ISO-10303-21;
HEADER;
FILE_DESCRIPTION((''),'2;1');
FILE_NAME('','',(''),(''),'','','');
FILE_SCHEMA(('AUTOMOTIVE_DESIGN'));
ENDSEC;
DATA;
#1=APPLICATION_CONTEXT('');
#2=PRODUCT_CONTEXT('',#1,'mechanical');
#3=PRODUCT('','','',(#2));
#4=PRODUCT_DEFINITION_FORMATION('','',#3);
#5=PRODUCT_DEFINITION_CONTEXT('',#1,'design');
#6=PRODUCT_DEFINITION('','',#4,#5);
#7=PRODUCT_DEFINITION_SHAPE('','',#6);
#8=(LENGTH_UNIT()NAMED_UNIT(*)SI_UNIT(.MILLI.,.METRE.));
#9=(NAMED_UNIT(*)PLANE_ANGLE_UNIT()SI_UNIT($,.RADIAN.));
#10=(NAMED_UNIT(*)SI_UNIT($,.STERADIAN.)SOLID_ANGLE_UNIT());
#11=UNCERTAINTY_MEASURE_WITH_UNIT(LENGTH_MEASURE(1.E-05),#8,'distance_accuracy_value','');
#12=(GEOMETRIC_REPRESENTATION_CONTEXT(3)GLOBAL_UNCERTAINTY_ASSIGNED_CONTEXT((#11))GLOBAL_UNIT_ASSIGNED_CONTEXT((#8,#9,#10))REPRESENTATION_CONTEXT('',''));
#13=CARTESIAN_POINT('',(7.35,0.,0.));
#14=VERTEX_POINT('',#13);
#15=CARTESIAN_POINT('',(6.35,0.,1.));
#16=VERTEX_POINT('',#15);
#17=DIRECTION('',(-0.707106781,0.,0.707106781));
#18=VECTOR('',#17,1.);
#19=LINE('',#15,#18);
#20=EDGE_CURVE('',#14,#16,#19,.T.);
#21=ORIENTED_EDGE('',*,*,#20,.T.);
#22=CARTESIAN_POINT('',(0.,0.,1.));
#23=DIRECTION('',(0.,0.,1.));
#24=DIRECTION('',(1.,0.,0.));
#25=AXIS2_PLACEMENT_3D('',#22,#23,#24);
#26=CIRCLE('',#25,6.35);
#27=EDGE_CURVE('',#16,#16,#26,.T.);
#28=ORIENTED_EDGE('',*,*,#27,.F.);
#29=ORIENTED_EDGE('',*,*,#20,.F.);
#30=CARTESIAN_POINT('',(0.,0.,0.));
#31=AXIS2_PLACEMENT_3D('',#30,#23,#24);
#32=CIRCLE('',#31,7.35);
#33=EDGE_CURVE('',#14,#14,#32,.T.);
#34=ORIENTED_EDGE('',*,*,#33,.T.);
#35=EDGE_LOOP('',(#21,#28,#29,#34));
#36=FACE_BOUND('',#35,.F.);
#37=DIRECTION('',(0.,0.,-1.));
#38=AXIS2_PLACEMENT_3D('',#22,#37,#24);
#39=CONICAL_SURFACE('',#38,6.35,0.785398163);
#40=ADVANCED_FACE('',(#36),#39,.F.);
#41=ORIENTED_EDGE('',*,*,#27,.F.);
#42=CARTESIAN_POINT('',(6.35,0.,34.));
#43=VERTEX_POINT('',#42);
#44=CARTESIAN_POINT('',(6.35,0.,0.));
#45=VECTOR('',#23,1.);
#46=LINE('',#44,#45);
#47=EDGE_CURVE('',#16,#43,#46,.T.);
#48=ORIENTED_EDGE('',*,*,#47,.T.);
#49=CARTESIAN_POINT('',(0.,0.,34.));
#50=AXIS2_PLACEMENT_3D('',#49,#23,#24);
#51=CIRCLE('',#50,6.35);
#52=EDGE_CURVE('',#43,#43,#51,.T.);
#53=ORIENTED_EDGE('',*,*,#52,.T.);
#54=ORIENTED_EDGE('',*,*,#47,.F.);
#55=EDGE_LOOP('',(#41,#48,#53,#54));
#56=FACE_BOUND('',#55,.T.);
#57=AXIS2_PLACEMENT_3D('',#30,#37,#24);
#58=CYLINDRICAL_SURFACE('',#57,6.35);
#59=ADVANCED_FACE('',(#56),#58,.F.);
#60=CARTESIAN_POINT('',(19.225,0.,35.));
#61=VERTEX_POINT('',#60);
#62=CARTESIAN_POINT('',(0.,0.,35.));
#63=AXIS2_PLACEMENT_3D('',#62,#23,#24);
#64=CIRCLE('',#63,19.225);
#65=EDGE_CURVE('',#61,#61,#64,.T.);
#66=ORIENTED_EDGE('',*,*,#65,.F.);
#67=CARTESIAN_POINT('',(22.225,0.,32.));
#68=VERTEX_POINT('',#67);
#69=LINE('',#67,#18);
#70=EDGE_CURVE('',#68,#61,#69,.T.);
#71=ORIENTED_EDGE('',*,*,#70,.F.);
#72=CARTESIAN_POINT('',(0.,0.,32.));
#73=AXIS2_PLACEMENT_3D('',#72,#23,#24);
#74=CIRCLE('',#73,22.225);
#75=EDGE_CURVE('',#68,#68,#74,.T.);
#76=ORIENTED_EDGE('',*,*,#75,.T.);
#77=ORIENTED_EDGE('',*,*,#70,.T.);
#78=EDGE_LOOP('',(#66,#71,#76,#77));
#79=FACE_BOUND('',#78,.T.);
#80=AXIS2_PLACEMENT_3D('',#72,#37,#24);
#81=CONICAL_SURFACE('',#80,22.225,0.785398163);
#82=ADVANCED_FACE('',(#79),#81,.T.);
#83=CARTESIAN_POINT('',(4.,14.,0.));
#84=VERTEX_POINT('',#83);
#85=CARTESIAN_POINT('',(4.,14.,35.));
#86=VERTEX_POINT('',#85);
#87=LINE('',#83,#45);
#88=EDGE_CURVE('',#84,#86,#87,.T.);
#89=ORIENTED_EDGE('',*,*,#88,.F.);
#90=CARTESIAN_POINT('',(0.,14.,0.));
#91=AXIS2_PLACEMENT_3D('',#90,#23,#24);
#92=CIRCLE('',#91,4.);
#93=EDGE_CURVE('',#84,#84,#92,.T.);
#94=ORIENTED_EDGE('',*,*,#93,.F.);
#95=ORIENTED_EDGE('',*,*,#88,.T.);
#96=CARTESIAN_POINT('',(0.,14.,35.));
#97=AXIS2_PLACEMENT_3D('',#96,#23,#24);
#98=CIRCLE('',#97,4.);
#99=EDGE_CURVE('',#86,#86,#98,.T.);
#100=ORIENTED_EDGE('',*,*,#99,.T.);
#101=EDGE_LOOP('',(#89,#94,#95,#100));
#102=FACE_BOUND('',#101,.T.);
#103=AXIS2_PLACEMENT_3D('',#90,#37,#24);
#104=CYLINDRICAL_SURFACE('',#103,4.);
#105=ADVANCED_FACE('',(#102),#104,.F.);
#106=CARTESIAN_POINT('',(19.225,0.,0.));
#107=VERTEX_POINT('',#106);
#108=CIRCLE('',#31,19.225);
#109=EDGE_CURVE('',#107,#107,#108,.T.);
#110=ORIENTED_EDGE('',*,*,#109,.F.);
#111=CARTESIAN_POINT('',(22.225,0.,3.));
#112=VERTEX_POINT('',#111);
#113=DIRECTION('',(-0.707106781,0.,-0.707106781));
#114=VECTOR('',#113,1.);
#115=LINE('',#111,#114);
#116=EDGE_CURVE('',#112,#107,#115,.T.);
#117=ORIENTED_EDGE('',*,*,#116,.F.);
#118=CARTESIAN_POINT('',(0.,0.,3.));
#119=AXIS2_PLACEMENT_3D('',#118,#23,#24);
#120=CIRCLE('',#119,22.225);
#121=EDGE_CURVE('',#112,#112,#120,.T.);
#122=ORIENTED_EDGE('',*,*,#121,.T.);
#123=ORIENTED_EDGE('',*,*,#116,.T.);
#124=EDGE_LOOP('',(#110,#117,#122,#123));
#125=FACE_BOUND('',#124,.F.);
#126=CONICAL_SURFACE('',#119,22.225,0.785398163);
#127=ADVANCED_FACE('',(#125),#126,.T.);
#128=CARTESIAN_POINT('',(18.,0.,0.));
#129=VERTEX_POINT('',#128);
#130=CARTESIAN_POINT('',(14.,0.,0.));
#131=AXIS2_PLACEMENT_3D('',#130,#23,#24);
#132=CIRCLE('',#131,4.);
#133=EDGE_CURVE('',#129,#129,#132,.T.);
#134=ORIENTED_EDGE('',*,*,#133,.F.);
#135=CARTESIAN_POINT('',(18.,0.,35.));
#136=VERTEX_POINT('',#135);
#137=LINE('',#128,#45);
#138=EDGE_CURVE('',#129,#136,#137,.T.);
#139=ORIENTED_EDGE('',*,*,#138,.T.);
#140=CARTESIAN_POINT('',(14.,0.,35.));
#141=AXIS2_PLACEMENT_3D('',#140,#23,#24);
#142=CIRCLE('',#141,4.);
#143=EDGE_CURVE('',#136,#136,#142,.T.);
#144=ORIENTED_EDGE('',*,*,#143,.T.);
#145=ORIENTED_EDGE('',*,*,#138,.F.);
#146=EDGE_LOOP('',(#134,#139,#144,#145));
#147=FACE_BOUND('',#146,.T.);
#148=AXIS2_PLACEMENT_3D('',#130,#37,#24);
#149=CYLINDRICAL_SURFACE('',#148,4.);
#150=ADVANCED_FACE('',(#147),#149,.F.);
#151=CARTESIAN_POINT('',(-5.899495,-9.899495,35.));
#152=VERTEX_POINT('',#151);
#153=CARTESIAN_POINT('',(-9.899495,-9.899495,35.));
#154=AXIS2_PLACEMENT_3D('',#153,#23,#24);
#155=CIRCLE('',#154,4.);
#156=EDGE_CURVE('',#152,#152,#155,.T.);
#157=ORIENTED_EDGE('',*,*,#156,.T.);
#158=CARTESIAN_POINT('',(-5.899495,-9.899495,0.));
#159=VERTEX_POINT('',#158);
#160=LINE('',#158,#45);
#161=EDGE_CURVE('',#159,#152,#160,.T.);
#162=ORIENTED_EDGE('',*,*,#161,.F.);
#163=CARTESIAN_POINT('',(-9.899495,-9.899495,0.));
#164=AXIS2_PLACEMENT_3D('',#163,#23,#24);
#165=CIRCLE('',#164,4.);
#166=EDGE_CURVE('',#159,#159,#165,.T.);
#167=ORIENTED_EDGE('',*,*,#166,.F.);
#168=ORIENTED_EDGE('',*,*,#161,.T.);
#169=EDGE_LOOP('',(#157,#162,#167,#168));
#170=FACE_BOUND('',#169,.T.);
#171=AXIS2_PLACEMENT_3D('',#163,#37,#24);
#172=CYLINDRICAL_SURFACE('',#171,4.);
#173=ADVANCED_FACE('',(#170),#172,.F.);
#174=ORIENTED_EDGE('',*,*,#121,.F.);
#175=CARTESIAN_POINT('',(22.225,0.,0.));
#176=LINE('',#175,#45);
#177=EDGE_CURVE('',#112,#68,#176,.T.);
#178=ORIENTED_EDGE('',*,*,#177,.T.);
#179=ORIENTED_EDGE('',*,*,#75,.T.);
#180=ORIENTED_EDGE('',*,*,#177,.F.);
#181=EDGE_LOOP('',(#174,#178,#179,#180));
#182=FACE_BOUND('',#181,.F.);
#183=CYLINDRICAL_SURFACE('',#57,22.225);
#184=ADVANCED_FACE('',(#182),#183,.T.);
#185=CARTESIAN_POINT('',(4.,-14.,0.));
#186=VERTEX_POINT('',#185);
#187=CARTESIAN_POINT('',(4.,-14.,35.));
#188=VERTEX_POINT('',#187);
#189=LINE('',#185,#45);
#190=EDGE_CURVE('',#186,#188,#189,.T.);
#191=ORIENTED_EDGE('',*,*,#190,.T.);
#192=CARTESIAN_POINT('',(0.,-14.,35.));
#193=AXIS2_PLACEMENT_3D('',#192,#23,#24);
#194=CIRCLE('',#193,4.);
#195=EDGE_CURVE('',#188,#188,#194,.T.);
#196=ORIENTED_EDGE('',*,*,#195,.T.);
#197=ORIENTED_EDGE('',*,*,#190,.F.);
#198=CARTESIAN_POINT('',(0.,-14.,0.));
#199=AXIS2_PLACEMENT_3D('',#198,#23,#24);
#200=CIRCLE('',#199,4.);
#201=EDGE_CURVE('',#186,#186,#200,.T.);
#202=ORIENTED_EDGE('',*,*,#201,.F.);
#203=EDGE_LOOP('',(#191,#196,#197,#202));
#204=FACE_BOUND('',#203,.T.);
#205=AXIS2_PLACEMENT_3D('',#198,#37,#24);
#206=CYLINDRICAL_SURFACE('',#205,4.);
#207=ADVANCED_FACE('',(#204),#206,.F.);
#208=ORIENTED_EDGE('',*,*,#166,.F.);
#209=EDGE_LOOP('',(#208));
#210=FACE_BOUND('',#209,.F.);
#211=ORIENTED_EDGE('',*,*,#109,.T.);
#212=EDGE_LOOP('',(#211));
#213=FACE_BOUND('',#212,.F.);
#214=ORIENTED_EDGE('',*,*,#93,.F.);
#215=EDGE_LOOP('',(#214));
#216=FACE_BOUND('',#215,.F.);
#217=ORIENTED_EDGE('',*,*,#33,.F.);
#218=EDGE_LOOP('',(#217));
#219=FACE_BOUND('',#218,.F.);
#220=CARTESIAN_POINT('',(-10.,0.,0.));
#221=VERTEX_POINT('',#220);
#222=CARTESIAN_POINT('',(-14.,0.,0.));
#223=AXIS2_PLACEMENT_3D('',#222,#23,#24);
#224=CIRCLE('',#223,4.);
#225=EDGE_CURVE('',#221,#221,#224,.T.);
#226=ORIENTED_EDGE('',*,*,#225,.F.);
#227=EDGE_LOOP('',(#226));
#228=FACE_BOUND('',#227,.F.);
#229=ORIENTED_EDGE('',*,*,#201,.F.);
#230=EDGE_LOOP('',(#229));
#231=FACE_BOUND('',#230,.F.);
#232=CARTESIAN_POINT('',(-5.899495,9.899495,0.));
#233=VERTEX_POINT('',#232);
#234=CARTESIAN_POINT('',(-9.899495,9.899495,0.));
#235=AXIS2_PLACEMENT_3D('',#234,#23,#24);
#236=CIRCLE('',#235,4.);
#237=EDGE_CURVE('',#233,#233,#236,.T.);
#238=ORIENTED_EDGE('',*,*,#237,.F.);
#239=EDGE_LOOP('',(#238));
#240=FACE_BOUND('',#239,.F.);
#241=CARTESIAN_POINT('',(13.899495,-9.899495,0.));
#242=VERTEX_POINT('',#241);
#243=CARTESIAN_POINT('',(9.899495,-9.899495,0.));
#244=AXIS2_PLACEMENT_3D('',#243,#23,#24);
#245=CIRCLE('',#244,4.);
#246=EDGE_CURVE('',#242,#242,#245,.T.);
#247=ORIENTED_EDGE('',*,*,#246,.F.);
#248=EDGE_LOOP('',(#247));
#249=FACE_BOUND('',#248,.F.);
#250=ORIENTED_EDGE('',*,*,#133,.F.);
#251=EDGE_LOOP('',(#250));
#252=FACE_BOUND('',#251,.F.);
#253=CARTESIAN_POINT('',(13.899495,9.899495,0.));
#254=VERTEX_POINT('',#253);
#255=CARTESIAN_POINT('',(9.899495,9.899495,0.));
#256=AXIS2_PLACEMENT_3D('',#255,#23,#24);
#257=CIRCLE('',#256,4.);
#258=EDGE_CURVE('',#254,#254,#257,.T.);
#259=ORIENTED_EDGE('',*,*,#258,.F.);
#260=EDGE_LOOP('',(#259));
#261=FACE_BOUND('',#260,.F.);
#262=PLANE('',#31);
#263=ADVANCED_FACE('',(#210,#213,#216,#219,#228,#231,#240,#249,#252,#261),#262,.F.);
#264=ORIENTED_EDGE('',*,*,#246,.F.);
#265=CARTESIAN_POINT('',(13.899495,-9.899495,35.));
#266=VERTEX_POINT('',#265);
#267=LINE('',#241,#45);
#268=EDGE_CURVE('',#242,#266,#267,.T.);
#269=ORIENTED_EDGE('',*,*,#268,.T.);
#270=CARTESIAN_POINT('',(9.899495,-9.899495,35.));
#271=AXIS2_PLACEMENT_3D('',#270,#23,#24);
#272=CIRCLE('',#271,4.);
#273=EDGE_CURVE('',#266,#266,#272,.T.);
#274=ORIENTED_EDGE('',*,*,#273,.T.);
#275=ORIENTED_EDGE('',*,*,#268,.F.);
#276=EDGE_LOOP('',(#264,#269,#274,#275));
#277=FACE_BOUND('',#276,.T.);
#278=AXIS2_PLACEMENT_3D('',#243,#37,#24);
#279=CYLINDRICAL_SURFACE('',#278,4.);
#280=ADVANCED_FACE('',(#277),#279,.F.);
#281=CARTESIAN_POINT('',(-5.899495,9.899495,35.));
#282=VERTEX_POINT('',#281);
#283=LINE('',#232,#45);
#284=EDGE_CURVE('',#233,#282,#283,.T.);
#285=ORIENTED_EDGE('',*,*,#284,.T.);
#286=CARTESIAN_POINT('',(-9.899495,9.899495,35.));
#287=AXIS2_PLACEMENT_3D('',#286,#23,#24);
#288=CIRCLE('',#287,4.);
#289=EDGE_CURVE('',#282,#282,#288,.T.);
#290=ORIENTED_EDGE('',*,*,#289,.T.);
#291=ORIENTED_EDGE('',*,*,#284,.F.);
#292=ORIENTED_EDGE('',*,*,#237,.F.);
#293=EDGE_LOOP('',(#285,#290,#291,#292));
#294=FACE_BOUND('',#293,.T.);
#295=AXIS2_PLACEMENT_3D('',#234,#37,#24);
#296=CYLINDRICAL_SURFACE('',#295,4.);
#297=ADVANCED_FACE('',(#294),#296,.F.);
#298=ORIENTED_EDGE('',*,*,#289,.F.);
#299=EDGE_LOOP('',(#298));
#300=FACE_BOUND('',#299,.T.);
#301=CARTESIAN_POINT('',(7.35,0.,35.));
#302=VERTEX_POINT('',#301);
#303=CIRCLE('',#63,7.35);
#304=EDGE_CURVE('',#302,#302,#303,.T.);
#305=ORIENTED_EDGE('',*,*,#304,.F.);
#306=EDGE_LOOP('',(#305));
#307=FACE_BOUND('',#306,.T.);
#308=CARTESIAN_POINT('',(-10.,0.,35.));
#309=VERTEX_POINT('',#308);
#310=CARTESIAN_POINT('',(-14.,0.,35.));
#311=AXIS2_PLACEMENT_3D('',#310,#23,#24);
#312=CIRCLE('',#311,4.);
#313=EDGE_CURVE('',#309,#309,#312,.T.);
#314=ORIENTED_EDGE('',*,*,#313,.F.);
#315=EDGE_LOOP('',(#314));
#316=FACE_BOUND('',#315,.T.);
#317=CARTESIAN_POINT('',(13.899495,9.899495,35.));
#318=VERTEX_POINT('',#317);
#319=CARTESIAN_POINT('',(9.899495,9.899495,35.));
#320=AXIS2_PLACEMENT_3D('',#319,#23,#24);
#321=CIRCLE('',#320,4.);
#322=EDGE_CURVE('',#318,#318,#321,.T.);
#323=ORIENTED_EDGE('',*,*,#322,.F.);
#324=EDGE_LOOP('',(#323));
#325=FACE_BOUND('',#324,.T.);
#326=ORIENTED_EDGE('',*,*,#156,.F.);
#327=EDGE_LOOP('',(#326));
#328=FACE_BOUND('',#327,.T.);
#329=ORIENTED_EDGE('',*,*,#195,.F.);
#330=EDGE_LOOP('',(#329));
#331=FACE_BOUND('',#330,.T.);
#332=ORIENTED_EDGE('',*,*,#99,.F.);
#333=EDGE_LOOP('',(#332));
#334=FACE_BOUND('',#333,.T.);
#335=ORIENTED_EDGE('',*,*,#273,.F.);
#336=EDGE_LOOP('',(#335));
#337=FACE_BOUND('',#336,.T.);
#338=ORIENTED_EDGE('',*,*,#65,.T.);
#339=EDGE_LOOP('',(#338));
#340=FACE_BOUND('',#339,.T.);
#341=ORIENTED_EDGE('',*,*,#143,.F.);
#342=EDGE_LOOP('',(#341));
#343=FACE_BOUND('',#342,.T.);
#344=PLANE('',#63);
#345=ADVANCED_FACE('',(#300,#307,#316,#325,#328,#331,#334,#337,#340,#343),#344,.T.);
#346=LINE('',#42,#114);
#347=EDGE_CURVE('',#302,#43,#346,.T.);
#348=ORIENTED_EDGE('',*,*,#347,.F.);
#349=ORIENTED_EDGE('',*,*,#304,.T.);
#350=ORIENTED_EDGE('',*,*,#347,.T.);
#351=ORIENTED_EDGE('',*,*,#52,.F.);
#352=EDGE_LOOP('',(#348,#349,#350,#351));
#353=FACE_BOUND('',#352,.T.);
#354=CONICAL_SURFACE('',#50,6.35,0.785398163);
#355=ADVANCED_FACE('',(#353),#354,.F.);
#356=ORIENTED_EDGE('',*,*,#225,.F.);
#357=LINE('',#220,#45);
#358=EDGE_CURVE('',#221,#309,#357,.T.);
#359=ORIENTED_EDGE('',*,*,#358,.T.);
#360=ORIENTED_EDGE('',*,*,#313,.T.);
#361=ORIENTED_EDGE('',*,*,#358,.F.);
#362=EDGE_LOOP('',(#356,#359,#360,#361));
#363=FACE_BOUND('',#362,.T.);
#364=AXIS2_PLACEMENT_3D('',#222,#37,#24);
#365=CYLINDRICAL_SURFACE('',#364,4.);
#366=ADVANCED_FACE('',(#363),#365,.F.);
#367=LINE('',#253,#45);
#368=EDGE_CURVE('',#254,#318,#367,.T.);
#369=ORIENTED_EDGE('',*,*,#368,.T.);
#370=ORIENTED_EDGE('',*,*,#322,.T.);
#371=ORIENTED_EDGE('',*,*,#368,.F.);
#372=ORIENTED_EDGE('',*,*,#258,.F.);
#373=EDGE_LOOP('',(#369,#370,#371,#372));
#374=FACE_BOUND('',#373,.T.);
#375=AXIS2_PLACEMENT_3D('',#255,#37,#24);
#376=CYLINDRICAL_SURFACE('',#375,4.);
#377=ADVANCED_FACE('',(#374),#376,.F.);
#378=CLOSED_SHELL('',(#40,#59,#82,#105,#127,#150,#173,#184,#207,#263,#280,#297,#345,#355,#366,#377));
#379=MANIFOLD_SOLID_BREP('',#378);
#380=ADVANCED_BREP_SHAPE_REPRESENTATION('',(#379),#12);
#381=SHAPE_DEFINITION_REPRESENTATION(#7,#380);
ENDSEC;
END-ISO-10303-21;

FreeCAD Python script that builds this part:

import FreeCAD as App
import Part
import Sketcher
from FreeCAD import Vector


def edges_at(feature, points):
    """Names of the edges that pass closest to the given points."""
    edges = feature.Shape.Edges
    near = lambda p: min(range(len(edges)), key=lambda i: edges[i].distToShape(Part.Vertex(*p))[0])
    return sorted({f"Edge{near(p) + 1}" for p in points})

doc = App.newDocument("Part")
params = doc.addObject("Spreadsheet::Sheet", "Params")
for row, (alias, value) in enumerate([
    ("sketch1_diameter", "8 mm"),
    ("sketch1_diameter2", "12.7 mm"),
    ("sketch1_diameter3", "44.45 mm"),
    ("pad1_length", "35 mm"),
    ("chamfer_size", "3 mm"),
    ("chamfer2_size", "1 mm"),
], start=1):
    params.set(f"A{row}", alias)
    params.set(f"B{row}", "=" + value)
    params.setAlias(f"B{row}", alias)

body = doc.addObject("PartDesign::Body", "Body")

# Sketch on XY plane
sketch1 = doc.addObject("Sketcher::SketchObject", "Sketch")
body.addObject(sketch1)
sketch1.AttachmentSupport = (doc.XY_Plane, [""])
sketch1.MapMode = "FlatFace"
sketch1.addGeometry([
    Part.Circle(Vector(0, 0, 0), Vector(0, 0, 1), 22.225),  # 0
    Part.Circle(Vector(-9.899495, -9.899495, 0), Vector(0, 0, 1), 4),  # 1
    Part.Circle(Vector(0, -14, 0), Vector(0, 0, 1), 4),  # 2
    Part.Circle(Vector(9.899495, -9.899495, 0), Vector(0, 0, 1), 4),  # 3
    Part.Circle(Vector(-14, 0, 0), Vector(0, 0, 1), 4),  # 4
    Part.Circle(Vector(-9.899495, 9.899495, 0), Vector(0, 0, 1), 4),  # 5
    Part.Circle(Vector(0, 0, 0), Vector(0, 0, 1), 6.35),  # 6
    Part.Circle(Vector(14, 0, 0), Vector(0, 0, 1), 4),  # 7
    Part.Circle(Vector(0, 14, 0), Vector(0, 0, 1), 4),  # 8
    Part.Circle(Vector(9.899495, 9.899495, 0), Vector(0, 0, 1), 4),  # 9
], False)
sketch1.addConstraint([
    Sketcher.Constraint("Coincident", 0, 3, -1, 1),
    Sketcher.Constraint("Coincident", 6, 3, -1, 1),
    Sketcher.Constraint("Equal", 1, 2),
    Sketcher.Constraint("Equal", 2, 3),
    Sketcher.Constraint("Equal", 3, 4),
    Sketcher.Constraint("Equal", 4, 5),
    Sketcher.Constraint("Equal", 5, 7),
    Sketcher.Constraint("Equal", 7, 8),
    Sketcher.Constraint("Equal", 8, 9),
    Sketcher.Constraint("Symmetric", 3, 3, 5, 3, -1, 1),
    Sketcher.Constraint("Symmetric", 4, 3, 7, 3, -1, 1),
    Sketcher.Constraint("Symmetric", 2, 3, 8, 3, -1, 1),
    Sketcher.Constraint("Symmetric", 1, 3, 9, 3, -1, 1),
    Sketcher.Constraint("Symmetric", 1, 3, 3, 3, -2),
    Sketcher.Constraint("PointOnObject", 2, 3, -2),
    Sketcher.Constraint("PointOnObject", 4, 3, -1),
    Sketcher.Constraint("Diameter", 1, 8.0),
    Sketcher.Constraint("Diameter", 6, 12.7),
    Sketcher.Constraint("Diameter", 0, 44.45),
    Sketcher.Constraint("DistanceY", 2, 3, -1, 1, 14.0),
    Sketcher.Constraint("DistanceX", 4, 3, -1, 1, 14.0),
    Sketcher.Constraint("DistanceX", 1, 3, 3, 3, 19.79899),
    Sketcher.Constraint("DistanceY", 1, 3, 5, 3, 19.79899),
])
sketch1.setExpression("Constraints[16]", "Params.sketch1_diameter")
sketch1.setExpression("Constraints[17]", "Params.sketch1_diameter2")
sketch1.setExpression("Constraints[18]", "Params.sketch1_diameter3")
pad1 = doc.addObject("PartDesign::Pad", "Pad")
body.addObject(pad1)
pad1.Profile = sketch1
pad1.setExpression("Length", "Params.pad1_length")
doc.recompute()

chamfer = doc.addObject("PartDesign::Chamfer", "Chamfer")
body.addObject(chamfer)
chamfer.Base = (pad1, edges_at(pad1, [(-22.225, 0, 35), (-22.225, 0, 0)]))
chamfer.setExpression("Size", "Params.chamfer_size")
doc.recompute()

chamfer2 = doc.addObject("PartDesign::Chamfer", "Chamfer001")
body.addObject(chamfer2)
chamfer2.Base = (chamfer, edges_at(chamfer, [(-6.35, 0, 0), (-6.35, 0, 35)]))
chamfer2.setExpression("Size", "Params.chamfer2_size")

doc.recompute()
